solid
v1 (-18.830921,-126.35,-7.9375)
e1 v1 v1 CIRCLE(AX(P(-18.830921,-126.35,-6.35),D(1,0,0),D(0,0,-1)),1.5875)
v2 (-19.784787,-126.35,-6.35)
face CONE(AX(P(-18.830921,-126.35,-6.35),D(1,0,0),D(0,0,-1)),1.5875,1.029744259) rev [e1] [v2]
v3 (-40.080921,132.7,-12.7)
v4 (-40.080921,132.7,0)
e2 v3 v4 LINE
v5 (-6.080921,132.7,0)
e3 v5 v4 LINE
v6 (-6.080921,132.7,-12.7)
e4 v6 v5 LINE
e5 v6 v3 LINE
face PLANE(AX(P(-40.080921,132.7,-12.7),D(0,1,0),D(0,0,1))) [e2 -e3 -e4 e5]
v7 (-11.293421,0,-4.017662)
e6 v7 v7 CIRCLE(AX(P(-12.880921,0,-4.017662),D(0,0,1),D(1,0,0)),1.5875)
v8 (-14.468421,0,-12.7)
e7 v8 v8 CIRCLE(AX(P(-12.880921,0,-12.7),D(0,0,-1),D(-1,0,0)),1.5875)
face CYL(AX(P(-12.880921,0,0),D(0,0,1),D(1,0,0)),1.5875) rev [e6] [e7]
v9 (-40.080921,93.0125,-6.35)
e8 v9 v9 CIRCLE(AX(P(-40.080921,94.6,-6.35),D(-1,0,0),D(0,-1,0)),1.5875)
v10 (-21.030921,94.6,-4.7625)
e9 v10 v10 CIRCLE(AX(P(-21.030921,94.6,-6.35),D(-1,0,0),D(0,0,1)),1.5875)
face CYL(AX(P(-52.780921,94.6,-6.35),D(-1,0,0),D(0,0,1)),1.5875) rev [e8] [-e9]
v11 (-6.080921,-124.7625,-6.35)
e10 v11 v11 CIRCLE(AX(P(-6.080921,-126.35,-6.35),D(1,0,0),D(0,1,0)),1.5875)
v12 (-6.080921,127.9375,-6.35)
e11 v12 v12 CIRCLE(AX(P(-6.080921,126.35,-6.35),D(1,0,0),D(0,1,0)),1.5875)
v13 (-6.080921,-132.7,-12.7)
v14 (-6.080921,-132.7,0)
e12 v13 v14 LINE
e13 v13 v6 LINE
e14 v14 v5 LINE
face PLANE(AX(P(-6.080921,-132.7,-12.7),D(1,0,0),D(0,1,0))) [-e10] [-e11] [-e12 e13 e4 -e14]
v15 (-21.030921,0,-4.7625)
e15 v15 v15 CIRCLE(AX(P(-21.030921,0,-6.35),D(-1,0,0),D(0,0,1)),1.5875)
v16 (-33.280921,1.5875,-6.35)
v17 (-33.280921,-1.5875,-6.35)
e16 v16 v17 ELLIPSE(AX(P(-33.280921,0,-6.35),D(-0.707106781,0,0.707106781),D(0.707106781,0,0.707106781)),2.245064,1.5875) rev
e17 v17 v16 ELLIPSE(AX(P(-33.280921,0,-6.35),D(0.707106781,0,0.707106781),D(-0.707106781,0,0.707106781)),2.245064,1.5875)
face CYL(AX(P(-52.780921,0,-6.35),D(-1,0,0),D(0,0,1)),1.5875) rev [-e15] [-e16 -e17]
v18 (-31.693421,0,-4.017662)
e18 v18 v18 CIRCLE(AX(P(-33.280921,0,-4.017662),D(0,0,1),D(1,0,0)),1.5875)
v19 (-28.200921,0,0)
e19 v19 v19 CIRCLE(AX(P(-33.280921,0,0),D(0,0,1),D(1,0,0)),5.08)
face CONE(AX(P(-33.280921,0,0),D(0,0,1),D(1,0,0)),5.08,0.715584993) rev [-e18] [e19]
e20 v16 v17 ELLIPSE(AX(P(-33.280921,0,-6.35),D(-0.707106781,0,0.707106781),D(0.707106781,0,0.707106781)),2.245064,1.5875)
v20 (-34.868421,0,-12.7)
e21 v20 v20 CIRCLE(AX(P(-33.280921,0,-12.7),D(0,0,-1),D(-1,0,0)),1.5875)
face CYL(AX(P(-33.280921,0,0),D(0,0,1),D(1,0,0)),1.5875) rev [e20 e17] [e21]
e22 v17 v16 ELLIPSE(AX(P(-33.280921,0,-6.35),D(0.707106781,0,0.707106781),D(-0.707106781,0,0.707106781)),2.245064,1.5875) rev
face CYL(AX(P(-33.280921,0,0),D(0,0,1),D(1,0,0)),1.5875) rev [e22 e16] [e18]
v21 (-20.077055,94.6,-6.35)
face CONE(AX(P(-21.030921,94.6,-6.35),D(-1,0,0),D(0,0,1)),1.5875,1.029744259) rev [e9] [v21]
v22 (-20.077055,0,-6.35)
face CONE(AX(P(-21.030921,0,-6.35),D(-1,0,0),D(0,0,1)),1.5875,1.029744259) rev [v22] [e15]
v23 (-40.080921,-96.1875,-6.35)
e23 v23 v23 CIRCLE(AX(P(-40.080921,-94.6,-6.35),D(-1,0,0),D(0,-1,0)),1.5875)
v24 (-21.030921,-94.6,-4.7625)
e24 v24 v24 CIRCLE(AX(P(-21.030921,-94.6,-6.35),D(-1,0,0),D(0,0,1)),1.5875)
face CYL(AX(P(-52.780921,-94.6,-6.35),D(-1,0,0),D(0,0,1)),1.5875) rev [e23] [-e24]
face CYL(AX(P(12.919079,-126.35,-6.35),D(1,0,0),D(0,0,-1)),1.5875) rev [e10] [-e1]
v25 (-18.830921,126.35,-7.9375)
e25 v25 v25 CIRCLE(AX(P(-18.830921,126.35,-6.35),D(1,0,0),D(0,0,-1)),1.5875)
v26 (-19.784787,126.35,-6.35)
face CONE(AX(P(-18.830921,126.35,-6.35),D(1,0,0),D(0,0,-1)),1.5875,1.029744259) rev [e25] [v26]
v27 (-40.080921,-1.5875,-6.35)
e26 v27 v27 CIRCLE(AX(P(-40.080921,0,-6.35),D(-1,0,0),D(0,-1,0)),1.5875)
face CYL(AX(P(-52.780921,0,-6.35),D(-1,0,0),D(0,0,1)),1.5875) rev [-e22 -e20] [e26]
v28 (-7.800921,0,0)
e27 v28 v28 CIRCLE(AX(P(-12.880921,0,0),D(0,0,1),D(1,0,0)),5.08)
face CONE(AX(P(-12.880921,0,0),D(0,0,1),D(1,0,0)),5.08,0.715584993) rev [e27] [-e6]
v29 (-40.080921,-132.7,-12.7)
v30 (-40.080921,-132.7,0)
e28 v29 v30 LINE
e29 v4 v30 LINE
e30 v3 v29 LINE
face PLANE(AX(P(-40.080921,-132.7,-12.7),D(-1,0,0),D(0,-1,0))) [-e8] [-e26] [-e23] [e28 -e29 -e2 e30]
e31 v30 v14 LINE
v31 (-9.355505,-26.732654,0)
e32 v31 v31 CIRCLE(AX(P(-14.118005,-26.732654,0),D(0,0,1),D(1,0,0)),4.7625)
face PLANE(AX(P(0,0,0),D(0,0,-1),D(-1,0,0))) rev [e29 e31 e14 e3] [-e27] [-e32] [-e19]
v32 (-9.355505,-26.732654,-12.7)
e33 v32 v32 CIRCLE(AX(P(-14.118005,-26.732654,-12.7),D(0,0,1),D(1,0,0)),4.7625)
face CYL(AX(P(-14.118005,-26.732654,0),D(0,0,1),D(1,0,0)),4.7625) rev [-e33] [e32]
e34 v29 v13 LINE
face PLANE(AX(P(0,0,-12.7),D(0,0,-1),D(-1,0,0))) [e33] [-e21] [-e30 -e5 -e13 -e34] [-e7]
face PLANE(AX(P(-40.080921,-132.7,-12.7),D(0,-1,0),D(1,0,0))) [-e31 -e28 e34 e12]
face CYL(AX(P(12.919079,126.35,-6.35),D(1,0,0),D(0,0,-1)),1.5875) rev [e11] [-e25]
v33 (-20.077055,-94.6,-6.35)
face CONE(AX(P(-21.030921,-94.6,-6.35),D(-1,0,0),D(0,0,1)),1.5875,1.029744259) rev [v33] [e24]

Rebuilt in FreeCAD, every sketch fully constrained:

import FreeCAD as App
import Part
import Sketcher
from FreeCAD import Vector
Q = App.Units.Quantity


def add_polygon(sketch, points):
    """Adds a closed chain of lines whose ends are joined by coincident constraints."""
    first, n = sketch.GeometryCount, len(points)
    for a, b in zip(points, points[1:] + points[:1]):
        sketch.addGeometry(Part.LineSegment(App.Vector(*a, 0), App.Vector(*b, 0)), False)
    for i in range(n):
        sketch.addConstraint(Sketcher.Constraint("Coincident", first + i, 2, first + (i + 1) % n, 1))

doc = App.newDocument("Part")
body = doc.addObject("PartDesign::Body", "Body")

sketch1 = body.newObject("Sketcher::SketchObject", "Sketch")
sketch1.AttachmentSupport = (doc.getObject("XY_Plane"), [""])
sketch1.MapMode = "FlatFace"
add_polygon(sketch1, [(-40, 133), (-40, -133), (-6, -133), (-6, 133)])
sketch1.addConstraint(Sketcher.Constraint("Vertical", 0))
sketch1.addConstraint(Sketcher.Constraint("Horizontal", 1))
sketch1.addConstraint(Sketcher.Constraint("Vertical", 2))
sketch1.addConstraint(Sketcher.Constraint("Horizontal", 3))
sketch1.addConstraint(Sketcher.Constraint("DistanceX", 1, 1, 1, 2, 34.0))
sketch1.addConstraint(Sketcher.Constraint("DistanceY", 0, 2, 0, 1, 265.4))
sketch1.addConstraint(Sketcher.Constraint("DistanceY", 0, 2, -1, 1, 132.7))
sketch1.addConstraint(Sketcher.Constraint("DistanceX", 0, 2, -1, 1, 40.080921))
pad1 = body.newObject("PartDesign::Pad", "Pad")
pad1.Profile = sketch1
pad1.Length = Q("0.5 in")
pad1.Reversed = True

sketch2 = body.newObject("Sketcher::SketchObject", "Sketch001")
sketch2.AttachmentSupport = (doc.getObject("XY_Plane"), [""])
sketch2.MapMode = "FlatFace"
sketch2.addGeometry(Part.Circle(Vector(-14.1, -26.7, 0), Vector(0, 0, 1), 4.8), False)
sketch2.addConstraint(Sketcher.Constraint("Diameter", 0, Q("0.375 in")))
sketch2.addConstraint(Sketcher.Constraint("DistanceX", 0, 3, -1, 1, 14.118005))
sketch2.addConstraint(Sketcher.Constraint("DistanceY", 0, 3, -1, 1, 26.732654))
doc.recompute()
hole = body.newObject("PartDesign::Hole", "Hole")
hole.Profile = sketch2
hole.ThreadType = "None"
hole.Diameter = Q("0.375 in")
hole.DepthType = "ThroughAll"

sketch3 = body.newObject("Sketcher::SketchObject", "Sketch002")
sketch3.AttachmentSupport = (doc.getObject("YZ_Plane"), [""])
sketch3.MapMode = "FlatFace"
sketch3.AttachmentOffset = App.Placement(Vector(0, 0, 12.919079), App.Rotation())
sketch3.addGeometry(Part.Circle(Vector(-126.3, -6.3, 0), Vector(0, 0, 1), 1.6), False)
sketch3.addGeometry(Part.Circle(Vector(-146.1, 150.9, 0), Vector(0, 0, 1), 1.6), False)
sketch3.addGeometry(Part.Circle(Vector(-172.2, 150.9, 0), Vector(0, 0, 1), 1.6), False)
sketch3.addGeometry(Part.Circle(Vector(-126.3, 120.5, 0), Vector(0, 0, 1), 1.6), False)
sketch3.addGeometry(Part.Circle(Vector(-126.3, 24.1, 0), Vector(0, 0, 1), 1.6), False)
sketch3.addGeometry(Part.Circle(Vector(172.2, 150.9, 0), Vector(0, 0, 1), 1.6), False)
sketch3.addGeometry(Part.Circle(Vector(146.1, 150.9, 0), Vector(0, 0, 1), 1.6), False)
sketch3.addGeometry(Part.Circle(Vector(126.3, 120.5, 0), Vector(0, 0, 1), 1.6), False)
sketch3.addGeometry(Part.Circle(Vector(126.3, 24.1, 0), Vector(0, 0, 1), 1.6), False)
sketch3.addGeometry(Part.Circle(Vector(126.3, -6.3, 0), Vector(0, 0, 1), 1.6), False)
sketch3.addConstraint(Sketcher.Constraint("Equal", 0, 1))
sketch3.addConstraint(Sketcher.Constraint("Equal", 1, 2))
sketch3.addConstraint(Sketcher.Constraint("Equal", 2, 3))
sketch3.addConstraint(Sketcher.Constraint("Equal", 3, 4))
sketch3.addConstraint(Sketcher.Constraint("Equal", 4, 5))
sketch3.addConstraint(Sketcher.Constraint("Equal", 5, 6))
sketch3.addConstraint(Sketcher.Constraint("Equal", 6, 7))
sketch3.addConstraint(Sketcher.Constraint("Equal", 7, 8))
sketch3.addConstraint(Sketcher.Constraint("Equal", 8, 9))
sketch3.addConstraint(Sketcher.Constraint("Symmetric", 2, 3, 5, 3, -2))
sketch3.addConstraint(Sketcher.Constraint("Symmetric", 1, 3, 6, 3, -2))
sketch3.addConstraint(Sketcher.Constraint("Symmetric", 3, 3, 7, 3, -2))
sketch3.addConstraint(Sketcher.Constraint("Symmetric", 4, 3, 8, 3, -2))
sketch3.addConstraint(Sketcher.Constraint("Symmetric", 0, 3, 9, 3, -2))
sketch3.addConstraint(Sketcher.Constraint("Horizontal", 1, 3, 2, 3))
sketch3.addConstraint(Sketcher.Constraint("Vertical", 0, 3, 3, 3))
sketch3.addConstraint(Sketcher.Constraint("Vertical", 3, 3, 4, 3))
sketch3.addConstraint(Sketcher.Constraint("Diameter", 0, Q("0.125 in")))
sketch3.addConstraint(Sketcher.Constraint("DistanceY", 0, 3, -1, 1, Q("0.25 in")))
sketch3.addConstraint(Sketcher.Constraint("DistanceX", 0, 3, -1, 1, 126.35))
sketch3.addConstraint(Sketcher.Constraint("DistanceY", -1, 1, 1, 3, 150.95))
sketch3.addConstraint(Sketcher.Constraint("DistanceY", -1, 1, 3, 3, 120.5))
sketch3.addConstraint(Sketcher.Constraint("DistanceY", -1, 1, 4, 3, 24.1))
sketch3.addConstraint(Sketcher.Constraint("DistanceX", 1, 3, 5, 3, 318.25))
sketch3.addConstraint(Sketcher.Constraint("DistanceX", 1, 3, -1, 1, 146.083333))
doc.recompute()
hole2 = body.newObject("PartDesign::Hole", "Hole001")
hole2.Profile = sketch3
hole2.ThreadType = "None"
hole2.Diameter = Q("0.125 in")
hole2.DepthType = "Dimension"
hole2.Depth = Q("1.25 in")
hole2.DrillPoint = "Angled"
hole2.DrillPointAngle = 118
hole2.HoleCutType = "Countersink"
hole2.HoleCutDiameter = Q("0.4 in")
hole2.HoleCutCountersinkAngle = 82

sketch4 = body.newObject("Sketcher::SketchObject", "Sketch003")
sketch4.AttachmentSupport = (doc.getObject("XY_Plane"), [""])
sketch4.MapMode = "FlatFace"
sketch4.addGeometry(Part.Circle(Vector(-33.3, 0, 0), Vector(0, 0, 1), 1.6), False)
sketch4.addGeometry(Part.Circle(Vector(-12.9, 0, 0), Vector(0, 0, 1), 1.6), False)
sketch4.addConstraint(Sketcher.Constraint("Equal", 0, 1))
sketch4.addConstraint(Sketcher.Constraint("PointOnObject", 0, 3, -1))
sketch4.addConstraint(Sketcher.Constraint("PointOnObject", 1, 3, -1))
sketch4.addConstraint(Sketcher.Constraint("Diameter", 0, Q("0.125 in")))
sketch4.addConstraint(Sketcher.Constraint("DistanceX", 0, 3, 1, 3, 20.4))
sketch4.addConstraint(Sketcher.Constraint("DistanceX", 0, 3, -1, 1, 33.280921))
doc.recompute()
hole3 = body.newObject("PartDesign::Hole", "Hole002")
hole3.Profile = sketch4
hole3.ThreadType = "None"
hole3.Diameter = Q("0.125 in")
hole3.DepthType = "Dimension"
hole3.Depth = Q("1.25 in")
hole3.DrillPoint = "Angled"
hole3.DrillPointAngle = 118
hole3.HoleCutType = "Countersink"
hole3.HoleCutDiameter = Q("0.4 in")
hole3.HoleCutCountersinkAngle = 82

sketch5 = body.newObject("Sketcher::SketchObject", "Sketch004")
sketch5.AttachmentSupport = (doc.getObject("YZ_Plane"), [""])
sketch5.MapMode = "FlatFace"
sketch5.AttachmentOffset = App.Placement(Vector(0, 0, -52.780921), App.Rotation())
sketch5.addGeometry(Part.Circle(Vector(-207.8, -178, 0), Vector(0, 0, 1), 1.6), False)
sketch5.addGeometry(Part.Circle(Vector(-207.8, -70.5, 0), Vector(0, 0, 1), 1.6), False)
sketch5.addGeometry(Part.Circle(Vector(-207.8, 17.6, 0), Vector(0, 0, 1), 1.6), False)
sketch5.addGeometry(Part.Circle(Vector(-172.2, 150.9, 0), Vector(0, 0, 1), 1.6), False)
sketch5.addGeometry(Part.Circle(Vector(-146.1, 150.9, 0), Vector(0, 0, 1), 1.6), False)
sketch5.addGeometry(Part.Circle(Vector(-94.6, -6.3, 0), Vector(0, 0, 1), 1.6), False)
sketch5.addGeometry(Part.Circle(Vector(0, -6.3, 0), Vector(0, 0, 1), 1.6), False)
sketch5.addGeometry(Part.Circle(Vector(94.6, -6.3, 0), Vector(0, 0, 1), 1.6), False)
sketch5.addGeometry(Part.Circle(Vector(146.1, 150.9, 0), Vector(0, 0, 1), 1.6), False)
sketch5.addGeometry(Part.Circle(Vector(172.2, 150.9, 0), Vector(0, 0, 1), 1.6), False)
sketch5.addGeometry(Part.Circle(Vector(207.8, 17.6, 0), Vector(0, 0, 1), 1.6), False)
sketch5.addGeometry(Part.Circle(Vector(207.8, -70.5, 0), Vector(0, 0, 1), 1.6), False)
sketch5.addGeometry(Part.Circle(Vector(207.8, -178, 0), Vector(0, 0, 1), 1.6), False)
sketch5.addGeometry(Part.Circle(Vector(166.8, -146.9, 0), Vector(0, 0, 1), 1.6), False)
sketch5.addGeometry(Part.Circle(Vector(41, -146.9, 0), Vector(0, 0, 1), 1.6), False)
sketch5.addGeometry(Part.Circle(Vector(-41, -146.9, 0), Vector(0, 0, 1), 1.6), False)
sketch5.addGeometry(Part.Circle(Vector(-166.8, -146.9, 0), Vector(0, 0, 1), 1.6), False)
sketch5.addGeometry(Part.Circle(Vector(0, -38.1, 0), Vector(0, 0, 1), 1.6), False)
sketch5.addGeometry(Part.Circle(Vector(0, -146.9, 0), Vector(0, 0, 1), 1.6), False)
sketch5.addGeometry(Part.Circle(Vector(0, -257.3, 0), Vector(0, 0, 1), 1.6), False)
sketch5.addGeometry(Part.Circle(Vector(-126.3, 48.2, 0), Vector(0, 0, 1), 1.6), False)
sketch5.addGeometry(Part.Circle(Vector(-126.3, 96.4, 0), Vector(0, 0, 1), 1.6), False)
sketch5.addGeometry(Part.Circle(Vector(126.3, 96.4, 0), Vector(0, 0, 1), 1.6), False)
sketch5.addGeometry(Part.Circle(Vector(126.3, 48.2, 0), Vector(0, 0, 1), 1.6), False)
sketch5.addConstraint(Sketcher.Constraint("Equal", 0, 1))
sketch5.addConstraint(Sketcher.Constraint("Equal", 1, 2))
sketch5.addConstraint(Sketcher.Constraint("Equal", 2, 3))
sketch5.addConstraint(Sketcher.Constraint("Equal", 3, 4))
sketch5.addConstraint(Sketcher.Constraint("Equal", 4, 5))
sketch5.addConstraint(Sketcher.Constraint("Equal", 5, 6))
sketch5.addConstraint(Sketcher.Constraint("Equal", 6, 7))
sketch5.addConstraint(Sketcher.Constraint("Equal", 7, 8))
sketch5.addConstraint(Sketcher.Constraint("Equal", 8, 9))
sketch5.addConstraint(Sketcher.Constraint("Equal", 9, 10))
sketch5.addConstraint(Sketcher.Constraint("Equal", 10, 11))
sketch5.addConstraint(Sketcher.Constraint("Equal", 11, 12))
sketch5.addConstraint(Sketcher.Constraint("Equal", 12, 13))
sketch5.addConstraint(Sketcher.Constraint("Equal", 13, 14))
sketch5.addConstraint(Sketcher.Constraint("Equal", 14, 15))
sketch5.addConstraint(Sketcher.Constraint("Equal", 15, 16))
sketch5.addConstraint(Sketcher.Constraint("Equal", 16, 17))
sketch5.addConstraint(Sketcher.Constraint("Equal", 17, 18))
sketch5.addConstraint(Sketcher.Constraint("Equal", 18, 19))
sketch5.addConstraint(Sketcher.Constraint("Equal", 19, 20))
sketch5.addConstraint(Sketcher.Constraint("Equal", 20, 21))
sketch5.addConstraint(Sketcher.Constraint("Equal", 21, 22))
sketch5.addConstraint(Sketcher.Constraint("Equal", 22, 23))
sketch5.addConstraint(Sketcher.Constraint("Symmetric", 5, 3, 7, 3, -2))
sketch5.addConstraint(Sketcher.Constraint("Symmetric", 4, 3, 8, 3, -2))
sketch5.addConstraint(Sketcher.Constraint("Symmetric", 3, 3, 9, 3, -2))
sketch5.addConstraint(Sketcher.Constraint("Symmetric", 2, 3, 10, 3, -2))
sketch5.addConstraint(Sketcher.Constraint("Symmetric", 1, 3, 11, 3, -2))
sketch5.addConstraint(Sketcher.Constraint("Symmetric", 0, 3, 12, 3, -2))
sketch5.addConstraint(Sketcher.Constraint("Symmetric", 14, 3, 15, 3, -2))
sketch5.addConstraint(Sketcher.Constraint("Symmetric", 13, 3, 16, 3, -2))
sketch5.addConstraint(Sketcher.Constraint("Symmetric", 21, 3, 22, 3, -2))
sketch5.addConstraint(Sketcher.Constraint("Symmetric", 20, 3, 23, 3, -2))
sketch5.addConstraint(Sketcher.Constraint("PointOnObject", 6, 3, -2))
sketch5.addConstraint(Sketcher.Constraint("PointOnObject", 17, 3, -2))
sketch5.addConstraint(Sketcher.Constraint("PointOnObject", 18, 3, -2))
sketch5.addConstraint(Sketcher.Constraint("PointOnObject", 19, 3, -2))
sketch5.addConstraint(Sketcher.Constraint("Horizontal", 3, 3, 4, 3))
sketch5.addConstraint(Sketcher.Constraint("Horizontal", 5, 3, 6, 3))
sketch5.addConstraint(Sketcher.Constraint("Horizontal", 13, 3, 14, 3))
sketch5.addConstraint(Sketcher.Constraint("Horizontal", 16, 3, 18, 3))
sketch5.addConstraint(Sketcher.Constraint("Vertical", 0, 3, 1, 3))
sketch5.addConstraint(Sketcher.Constraint("Vertical", 1, 3, 2, 3))
sketch5.addConstraint(Sketcher.Constraint("Vertical", 20, 3, 21, 3))
sketch5.addConstraint(Sketcher.Constraint("Diameter", 0, Q("0.125 in")))
sketch5.addConstraint(Sketcher.Constraint("DistanceY", 17, 3, -1, 1, Q("1.5 in")))
sketch5.addConstraint(Sketcher.Constraint("DistanceY", 5, 3, -1, 1, Q("0.25 in")))
sketch5.addConstraint(Sketcher.Constraint("DistanceY", 2, 3, 3, 3, Q("5.25 in")))
sketch5.addConstraint(Sketcher.Constraint("DistanceX", 20, 3, 5, 3, Q("1.25 in")))
sketch5.addConstraint(Sketcher.Constraint("DistanceX", 0, 3, -1, 1, 207.775))
sketch5.addConstraint(Sketcher.Constraint("DistanceY", -1, 1, 2, 3, 17.6))
sketch5.addConstraint(Sketcher.Constraint("DistanceX", 5, 3, -1, 1, 94.6))
sketch5.addConstraint(Sketcher.Constraint("DistanceY", -1, 1, 20, 3, 48.2))
sketch5.addConstraint(Sketcher.Constraint("DistanceY", -1, 1, 21, 3, 96.4))
sketch5.addConstraint(Sketcher.Constraint("DistanceX", 3, 3, 8, 3, 318.25))
sketch5.addConstraint(Sketcher.Constraint("DistanceY", 0, 3, -1, 1, 177.99712))
sketch5.addConstraint(Sketcher.Constraint("DistanceY", 13, 3, -1, 1, 146.946061))
sketch5.addConstraint(Sketcher.Constraint("DistanceY", 19, 3, -1, 1, 257.342122))
sketch5.addConstraint(Sketcher.Constraint("DistanceY", 1, 3, -1, 1, 70.464747))
sketch5.addConstraint(Sketcher.Constraint("DistanceX", 3, 3, -1, 1, 172.166667))
sketch5.addConstraint(Sketcher.Constraint("DistanceX", -1, 1, 13, 3, 166.795833))
sketch5.addConstraint(Sketcher.Constraint("DistanceX", -1, 1, 14, 3, 40.979167))
doc.recompute()
hole4 = body.newObject("PartDesign::Hole", "Hole003")
hole4.Profile = sketch5
hole4.ThreadType = "None"
hole4.Diameter = Q("0.125 in")
hole4.DepthType = "Dimension"
hole4.Depth = Q("1.25 in")
hole4.DrillPoint = "Angled"
hole4.DrillPointAngle = 118
hole4.HoleCutType = "Countersink"
hole4.HoleCutDiameter = Q("0.4 in")
hole4.HoleCutCountersinkAngle = 82
hole4.Reversed = True

doc.recompute()
